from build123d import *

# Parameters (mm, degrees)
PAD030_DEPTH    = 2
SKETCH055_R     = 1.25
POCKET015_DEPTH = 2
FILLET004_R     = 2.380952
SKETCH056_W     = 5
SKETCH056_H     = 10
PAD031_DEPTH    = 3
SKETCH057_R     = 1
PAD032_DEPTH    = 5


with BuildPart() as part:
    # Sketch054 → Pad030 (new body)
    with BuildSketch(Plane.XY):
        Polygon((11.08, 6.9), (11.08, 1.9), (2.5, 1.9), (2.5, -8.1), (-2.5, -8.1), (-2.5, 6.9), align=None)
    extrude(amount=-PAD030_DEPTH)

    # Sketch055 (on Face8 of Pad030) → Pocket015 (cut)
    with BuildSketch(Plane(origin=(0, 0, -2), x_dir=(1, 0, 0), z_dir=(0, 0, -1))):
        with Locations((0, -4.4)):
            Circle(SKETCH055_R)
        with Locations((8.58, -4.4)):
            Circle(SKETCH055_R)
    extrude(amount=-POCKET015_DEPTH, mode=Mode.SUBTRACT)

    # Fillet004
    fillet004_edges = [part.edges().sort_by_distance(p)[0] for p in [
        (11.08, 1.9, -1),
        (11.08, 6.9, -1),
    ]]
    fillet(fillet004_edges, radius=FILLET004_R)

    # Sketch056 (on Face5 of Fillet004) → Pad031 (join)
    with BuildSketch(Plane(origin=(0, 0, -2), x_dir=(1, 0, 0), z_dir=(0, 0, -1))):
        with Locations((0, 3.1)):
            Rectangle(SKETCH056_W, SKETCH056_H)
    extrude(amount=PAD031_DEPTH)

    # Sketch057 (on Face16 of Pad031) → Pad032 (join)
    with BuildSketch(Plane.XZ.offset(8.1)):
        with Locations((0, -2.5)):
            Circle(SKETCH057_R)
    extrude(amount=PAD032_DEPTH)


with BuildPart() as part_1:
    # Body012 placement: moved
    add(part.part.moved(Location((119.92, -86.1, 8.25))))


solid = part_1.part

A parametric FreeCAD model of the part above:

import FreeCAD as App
import Part
import Sketcher

V = App.Vector


def edges_at(feature, points):
    """Names of the edges that pass closest to the given points."""
    edges = feature.Shape.Edges
    near = lambda p: min(range(len(edges)), key=lambda i: edges[i].distToShape(Part.Vertex(*p))[0])
    return sorted({f"Edge{near(p) + 1}" for p in points})

doc = App.newDocument("Part")
body = doc.addObject("PartDesign::Body", "Body")

sketch1 = body.newObject("Sketcher::SketchObject", "Sketch")
sketch1.AttachmentSupport = (doc.getObject("XY_Plane"), [""])
sketch1.MapMode = "FlatFace"
sketch1.addGeometry(Part.LineSegment(V(11, 2, 0), V(11, 7, 0)), False)
sketch1.addGeometry(Part.LineSegment(V(11, 7, 0), V(-2, 7, 0)), False)
sketch1.addGeometry(Part.LineSegment(V(-2, 7, 0), V(-2, -8, 0)), False)
sketch1.addGeometry(Part.LineSegment(V(-2, -8, 0), V(2, -8, 0)), False)
sketch1.addGeometry(Part.LineSegment(V(2, -8, 0), V(2, 2, 0)), False)
sketch1.addGeometry(Part.LineSegment(V(2, 2, 0), V(11, 2, 0)), False)
sketch1.addConstraint(Sketcher.Constraint("Coincident", 0, 2, 1, 1))
sketch1.addConstraint(Sketcher.Constraint("Coincident", 1, 2, 2, 1))
sketch1.addConstraint(Sketcher.Constraint("Coincident", 2, 2, 3, 1))
sketch1.addConstraint(Sketcher.Constraint("Coincident", 3, 2, 4, 1))
sketch1.addConstraint(Sketcher.Constraint("Coincident", 4, 2, 5, 1))
sketch1.addConstraint(Sketcher.Constraint("Coincident", 5, 2, 0, 1))
sketch1.addConstraint(Sketcher.Constraint("Vertical", 0))
sketch1.addConstraint(Sketcher.Constraint("Horizontal", 1))
sketch1.addConstraint(Sketcher.Constraint("Vertical", 2))
sketch1.addConstraint(Sketcher.Constraint("Horizontal", 3))
sketch1.addConstraint(Sketcher.Constraint("Vertical", 4))
sketch1.addConstraint(Sketcher.Constraint("Horizontal", 5))
sketch1.addConstraint(Sketcher.Constraint("Equal", 3, 0))
sketch1.addConstraint(Sketcher.Constraint("DistanceX", 3, 1, 3, 2, 5.0))
sketch1.addConstraint(Sketcher.Constraint("DistanceY", 2, 2, 2, 1, 15.0))
sketch1.addConstraint(Sketcher.Constraint("DistanceX", 1, 2, 1, 1, 13.58))
sketch1.addConstraint(Sketcher.Constraint("DistanceY", -1, 1, 0, 2, 6.9))
sketch1.addConstraint(Sketcher.Constraint("DistanceX", 1, 2, -1, 1, 2.5))
pad1 = body.newObject("PartDesign::Pad", "Pad")
pad1.Profile = sketch1
pad1.Length = 2
pad1.Reversed = True

sketch2 = body.newObject("Sketcher::SketchObject", "Sketch001")
sketch2.AttachmentSupport = (doc.getObject("XY_Plane"), [""])
sketch2.MapMode = "FlatFace"
sketch2.AttachmentOffset = App.Placement(V(0, 0, -2), App.Rotation())
sketch2.addGeometry(Part.Circle(V(0, 4.4, 0), V(0, 0, 1), 1.2), False)
sketch2.addGeometry(Part.Circle(V(8.6, 4.4, 0), V(0, 0, 1), 1.2), False)
sketch2.addConstraint(Sketcher.Constraint("Equal", 0, 1))
sketch2.addConstraint(Sketcher.Constraint("PointOnObject", 0, 3, -2))
sketch2.addConstraint(Sketcher.Constraint("Horizontal", 0, 3, 1, 3))
sketch2.addConstraint(Sketcher.Constraint("Diameter", 0, 2.5))
sketch2.addConstraint(Sketcher.Constraint("DistanceY", -1, 1, 0, 3, 4.4))
sketch2.addConstraint(Sketcher.Constraint("DistanceX", -1, 1, 1, 3, 8.58))
pocket1 = body.newObject("PartDesign::Pocket", "Pocket")
pocket1.Profile = sketch2
pocket1.Length = 2
pocket1.Reversed = True
doc.recompute()

fillet = body.newObject("PartDesign::Fillet", "Fillet")
fillet.Base = (pocket1, edges_at(pocket1, [(11.08, 1.9, -1), (11.08, 6.9, -1)]))
fillet.Radius = 2.380952

sketch3 = body.newObject("Sketcher::SketchObject", "Sketch002")
sketch3.AttachmentSupport = (doc.getObject("XY_Plane"), [""])
sketch3.MapMode = "FlatFace"
sketch3.AttachmentOffset = App.Placement(V(0, 0, -2), App.Rotation())
sketch3.addGeometry(Part.LineSegment(V(-2, -8, 0), V(-2, 2, 0)), False)
sketch3.addGeometry(Part.LineSegment(V(-2, 2, 0), V(2, 2, 0)), False)
sketch3.addGeometry(Part.LineSegment(V(2, 2, 0), V(2, -8, 0)), False)
sketch3.addGeometry(Part.LineSegment(V(2, -8, 0), V(-2, -8, 0)), False)
sketch3.addConstraint(Sketcher.Constraint("Coincident", 0, 2, 1, 1))
sketch3.addConstraint(Sketcher.Constraint("Coincident", 1, 2, 2, 1))
sketch3.addConstraint(Sketcher.Constraint("Coincident", 2, 2, 3, 1))
sketch3.addConstraint(Sketcher.Constraint("Coincident", 3, 2, 0, 1))
sketch3.addConstraint(Sketcher.Constraint("Vertical", 0))
sketch3.addConstraint(Sketcher.Constraint("Horizontal", 1))
sketch3.addConstraint(Sketcher.Constraint("Vertical", 2))
sketch3.addConstraint(Sketcher.Constraint("Horizontal", 3))
sketch3.addConstraint(Sketcher.Constraint("DistanceX", 1, 1, 1, 2, 5.0))
sketch3.addConstraint(Sketcher.Constraint("DistanceY", 0, 1, 0, 2, 10.0))
sketch3.addConstraint(Sketcher.Constraint("DistanceX", 0, 2, -1, 1, 2.5))
sketch3.addConstraint(Sketcher.Constraint("DistanceY", -1, 1, 0, 2, 1.9))
pad2 = body.newObject("PartDesign::Pad", "Pad001")
pad2.Profile = sketch3
pad2.Length = 3
pad2.Reversed = True

sketch4 = body.newObject("Sketcher::SketchObject", "Sketch003")
sketch4.AttachmentSupport = (doc.getObject("XZ_Plane"), [""])
sketch4.MapMode = "FlatFace"
sketch4.AttachmentOffset = App.Placement(V(0, 0, 8.1), App.Rotation())
sketch4.addGeometry(Part.Circle(V(0, -2.5, 0), V(0, 0, 1), 1), False)
sketch4.addConstraint(Sketcher.Constraint("PointOnObject", 0, 3, -2))
sketch4.addConstraint(Sketcher.Constraint("Diameter", 0, 2.0))
sketch4.addConstraint(Sketcher.Constraint("DistanceY", 0, 3, -1, 1, 2.5))
pad3 = body.newObject("PartDesign::Pad", "Pad002")
pad3.Profile = sketch4
pad3.Length = 5
body2 = doc.addObject("PartDesign::Body", "Body001")
doc.recompute()

body.Placement = App.Placement(V(119.92, -86.1, 8.25), App.Rotation(V(0, 0, 1), 0))
boolean = body2.newObject("PartDesign::Boolean", "Boolean")
boolean.Type = "Fuse"
boolean.addObjects([body])

doc.recompute()
